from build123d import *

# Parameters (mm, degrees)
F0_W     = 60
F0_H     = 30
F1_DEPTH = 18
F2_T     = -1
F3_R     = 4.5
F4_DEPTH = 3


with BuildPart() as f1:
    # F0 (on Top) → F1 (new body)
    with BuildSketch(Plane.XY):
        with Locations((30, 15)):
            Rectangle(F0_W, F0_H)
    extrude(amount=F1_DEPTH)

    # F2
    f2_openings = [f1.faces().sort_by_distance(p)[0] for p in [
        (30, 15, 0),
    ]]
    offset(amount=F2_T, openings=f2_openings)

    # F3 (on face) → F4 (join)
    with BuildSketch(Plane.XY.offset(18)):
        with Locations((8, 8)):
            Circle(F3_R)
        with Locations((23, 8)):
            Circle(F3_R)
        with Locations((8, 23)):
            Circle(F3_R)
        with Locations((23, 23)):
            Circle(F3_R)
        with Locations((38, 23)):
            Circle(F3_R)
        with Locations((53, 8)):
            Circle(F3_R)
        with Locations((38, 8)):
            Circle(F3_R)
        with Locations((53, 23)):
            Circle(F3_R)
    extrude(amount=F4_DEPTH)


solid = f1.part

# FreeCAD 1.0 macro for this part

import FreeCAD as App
import Part
import Sketcher


def faces_at(feature, points):
    """Names of the faces that lie closest to the given points."""
    faces = feature.Shape.Faces
    near = lambda p: min(range(len(faces)), key=lambda i: faces[i].distToShape(Part.Vertex(*p))[0])
    return sorted({f"Face{near(p) + 1}" for p in points})


def add_polygon(sketch, points):
    """Adds a closed chain of lines whose ends are joined by coincident constraints."""
    first, n = sketch.GeometryCount, len(points)
    for a, b in zip(points, points[1:] + points[:1]):
        sketch.addGeometry(Part.LineSegment(App.Vector(*a, 0), App.Vector(*b, 0)), False)
    for i in range(n):
        sketch.addConstraint(Sketcher.Constraint("Coincident", first + i, 2, first + (i + 1) % n, 1))

doc = App.newDocument("Part")
params = doc.addObject("Spreadsheet::Sheet", "Params")
for row, (alias, value) in enumerate([
    ("sketch1_width", "60 mm"),
    ("sketch1_height", "30 mm"),
    ("pad1_length", "18 mm"),
    ("thickness_wall", "1 mm"),
    ("sketch2_diameter", "9 mm"),
    ("pad2_length", "3 mm"),
], start=1):
    params.set(f"A{row}", alias)
    params.set(f"B{row}", "=" + value)
    params.setAlias(f"B{row}", alias)

body = doc.addObject("PartDesign::Body", "Body")

sketch1 = body.newObject("Sketcher::SketchObject", "Sketch")
sketch1.AttachmentSupport = (doc.getObject("XY_Plane"), [""])
sketch1.MapMode = "FlatFace"
add_polygon(sketch1, [(0, 30), (0, 0), (60, 0), (60, 30)])
sketch1.addConstraint(Sketcher.Constraint("Vertical", 0))
sketch1.addConstraint(Sketcher.Constraint("Horizontal", 1))
sketch1.addConstraint(Sketcher.Constraint("Vertical", 2))
sketch1.addConstraint(Sketcher.Constraint("Horizontal", 3))
sketch1.addConstraint(Sketcher.Constraint("Coincident", 0, 2, -1, 1))
sketch1.addConstraint(Sketcher.Constraint("DistanceX", 1, 1, 1, 2, 60.0))
sketch1.addConstraint(Sketcher.Constraint("DistanceY", 0, 2, 0, 1, 30.0))
sketch1.setExpression("Constraints[9]", "Params.sketch1_width")
sketch1.setExpression("Constraints[10]", "Params.sketch1_height")
pad1 = body.newObject("PartDesign::Pad", "Pad")
pad1.Profile = sketch1
pad1.setExpression("Length", "Params.pad1_length")
doc.recompute()

thickness = body.newObject("PartDesign::Thickness", "Thickness")
thickness.Base = (pad1, faces_at(pad1, [(30, 15, 0)]))
thickness.setExpression("Value", "Params.thickness_wall")
thickness.Reversed = True
thickness.Join = "Arc"

sketch2 = body.newObject("Sketcher::SketchObject", "Sketch001")
sketch2.AttachmentSupport = (doc.getObject("XY_Plane"), [""])
sketch2.MapMode = "FlatFace"
sketch2.AttachmentOffset = App.Placement(App.Vector(0, 0, 18), App.Rotation())
sketch2.addGeometry(Part.Circle(App.Vector(8, 8, 0), App.Vector(0, 0, 1), 4.5), False)
sketch2.addGeometry(Part.Circle(App.Vector(23, 8, 0), App.Vector(0, 0, 1), 4.5), False)
sketch2.addGeometry(Part.Circle(App.Vector(8, 23, 0), App.Vector(0, 0, 1), 4.5), False)
sketch2.addGeometry(Part.Circle(App.Vector(23, 23, 0), App.Vector(0, 0, 1), 4.5), False)
sketch2.addGeometry(Part.Circle(App.Vector(38, 23, 0), App.Vector(0, 0, 1), 4.5), False)
sketch2.addGeometry(Part.Circle(App.Vector(53, 8, 0), App.Vector(0, 0, 1), 4.5), False)
sketch2.addGeometry(Part.Circle(App.Vector(38, 8, 0), App.Vector(0, 0, 1), 4.5), False)
sketch2.addGeometry(Part.Circle(App.Vector(53, 23, 0), App.Vector(0, 0, 1), 4.5), False)
sketch2.addConstraint(Sketcher.Constraint("Equal", 0, 1))
sketch2.addConstraint(Sketcher.Constraint("Equal", 1, 2))
sketch2.addConstraint(Sketcher.Constraint("Equal", 2, 3))
sketch2.addConstraint(Sketcher.Constraint("Equal", 3, 4))
sketch2.addConstraint(Sketcher.Constraint("Equal", 4, 5))
sketch2.addConstraint(Sketcher.Constraint("Equal", 5, 6))
sketch2.addConstraint(Sketcher.Constraint("Equal", 6, 7))
sketch2.addConstraint(Sketcher.Constraint("Horizontal", 0, 3, 1, 3))
sketch2.addConstraint(Sketcher.Constraint("Horizontal", 2, 3, 3, 3))
sketch2.addConstraint(Sketcher.Constraint("Horizontal", 3, 3, 4, 3))
sketch2.addConstraint(Sketcher.Constraint("Horizontal", 1, 3, 5, 3))
sketch2.addConstraint(Sketcher.Constraint("Horizontal", 5, 3, 6, 3))
sketch2.addConstraint(Sketcher.Constraint("Horizontal", 4, 3, 7, 3))
sketch2.addConstraint(Sketcher.Constraint("Vertical", 0, 3, 2, 3))
sketch2.addConstraint(Sketcher.Constraint("Vertical", 1, 3, 3, 3))
sketch2.addConstraint(Sketcher.Constraint("Vertical", 4, 3, 6, 3))
sketch2.addConstraint(Sketcher.Constraint("Vertical", 5, 3, 7, 3))
sketch2.addConstraint(Sketcher.Constraint("Diameter", 0, 9.0))
sketch2.addConstraint(Sketcher.Constraint("DistanceX", -1, 1, 0, 3, 8.0))
sketch2.addConstraint(Sketcher.Constraint("DistanceY", -1, 1, 0, 3, 8.0))
sketch2.addConstraint(Sketcher.Constraint("DistanceX", -1, 1, 1, 3, 23.0))
sketch2.addConstraint(Sketcher.Constraint("DistanceY", -1, 1, 2, 3, 23.0))
sketch2.addConstraint(Sketcher.Constraint("DistanceX", -1, 1, 4, 3, 38.0))
sketch2.addConstraint(Sketcher.Constraint("DistanceX", -1, 1, 5, 3, 53.0))
sketch2.setExpression("Constraints[17]", "Params.sketch2_diameter")
pad2 = body.newObject("PartDesign::Pad", "Pad001")
pad2.Profile = sketch2
pad2.setExpression("Length", "Params.pad2_length")

doc.recompute()
